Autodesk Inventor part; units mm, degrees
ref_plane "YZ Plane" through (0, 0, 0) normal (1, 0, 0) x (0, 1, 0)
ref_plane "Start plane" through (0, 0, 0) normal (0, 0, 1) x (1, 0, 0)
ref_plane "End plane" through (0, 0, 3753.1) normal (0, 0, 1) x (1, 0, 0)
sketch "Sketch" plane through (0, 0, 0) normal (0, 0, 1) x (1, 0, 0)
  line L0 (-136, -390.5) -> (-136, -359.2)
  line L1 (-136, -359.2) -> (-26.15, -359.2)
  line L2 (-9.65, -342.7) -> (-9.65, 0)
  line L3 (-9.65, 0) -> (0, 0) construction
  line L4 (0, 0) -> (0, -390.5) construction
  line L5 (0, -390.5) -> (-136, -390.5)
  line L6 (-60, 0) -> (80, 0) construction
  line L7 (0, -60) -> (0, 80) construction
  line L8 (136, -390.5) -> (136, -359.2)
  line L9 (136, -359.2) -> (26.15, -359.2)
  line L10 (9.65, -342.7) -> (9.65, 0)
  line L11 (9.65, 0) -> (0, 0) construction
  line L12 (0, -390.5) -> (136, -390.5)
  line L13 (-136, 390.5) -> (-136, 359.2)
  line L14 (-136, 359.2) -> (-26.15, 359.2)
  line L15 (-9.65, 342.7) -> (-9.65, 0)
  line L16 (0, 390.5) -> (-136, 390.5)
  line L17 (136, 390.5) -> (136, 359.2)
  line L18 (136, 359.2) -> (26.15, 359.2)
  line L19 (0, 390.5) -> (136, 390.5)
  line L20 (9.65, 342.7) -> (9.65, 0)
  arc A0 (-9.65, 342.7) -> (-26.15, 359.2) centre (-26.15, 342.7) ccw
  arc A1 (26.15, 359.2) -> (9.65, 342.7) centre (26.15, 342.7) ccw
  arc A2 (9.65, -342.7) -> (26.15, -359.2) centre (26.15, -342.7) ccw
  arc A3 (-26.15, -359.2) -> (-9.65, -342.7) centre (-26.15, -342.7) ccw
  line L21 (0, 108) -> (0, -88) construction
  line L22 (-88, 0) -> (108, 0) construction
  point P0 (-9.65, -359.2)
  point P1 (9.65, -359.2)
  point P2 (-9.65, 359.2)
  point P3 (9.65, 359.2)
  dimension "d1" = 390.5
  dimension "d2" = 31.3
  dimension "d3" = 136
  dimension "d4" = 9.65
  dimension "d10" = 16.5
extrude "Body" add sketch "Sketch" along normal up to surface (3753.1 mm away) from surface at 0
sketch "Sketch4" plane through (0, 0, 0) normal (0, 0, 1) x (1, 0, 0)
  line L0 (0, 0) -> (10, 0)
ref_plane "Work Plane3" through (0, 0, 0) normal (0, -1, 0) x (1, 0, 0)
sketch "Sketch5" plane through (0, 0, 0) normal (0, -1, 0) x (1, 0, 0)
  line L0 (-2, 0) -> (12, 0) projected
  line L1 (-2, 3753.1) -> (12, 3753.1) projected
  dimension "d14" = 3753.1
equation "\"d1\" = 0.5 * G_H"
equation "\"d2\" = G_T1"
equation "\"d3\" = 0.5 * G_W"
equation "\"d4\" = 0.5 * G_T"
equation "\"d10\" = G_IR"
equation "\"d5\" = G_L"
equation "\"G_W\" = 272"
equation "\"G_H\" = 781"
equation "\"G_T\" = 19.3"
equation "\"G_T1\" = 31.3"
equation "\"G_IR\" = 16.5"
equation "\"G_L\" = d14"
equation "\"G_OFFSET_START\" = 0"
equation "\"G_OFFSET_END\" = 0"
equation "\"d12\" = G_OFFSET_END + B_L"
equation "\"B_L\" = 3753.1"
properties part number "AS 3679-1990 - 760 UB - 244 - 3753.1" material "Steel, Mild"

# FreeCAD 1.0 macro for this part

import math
import FreeCAD as App
import Part
import Sketcher

V = App.Vector
Q = App.Units.Quantity

doc = App.newDocument("Part")
body = doc.addObject("PartDesign::Body", "Body")

# Sketch on XY plane
sketch1 = body.newObject("Sketcher::SketchObject", "Sketch")
sketch1.AttachmentSupport = (doc.getObject("XY_Plane"), [""])
sketch1.MapMode = "FlatFace"
sketch1.addGeometry([
    Part.LineSegment(V(-136, -359, 0), V(-136, -390, 0)),  # 0
    Part.LineSegment(V(-136, -390, 0), V(136, -390, 0)),  # 1
    Part.LineSegment(V(136, -390, 0), V(136, -359, 0)),  # 2
    Part.LineSegment(V(136, -359, 0), V(26, -359, 0)),  # 3
    Part.ArcOfCircle(Part.Circle(V(26, -343, 0), V(0, 0, 1), 16), math.radians(180), math.radians(270)),  # 4
    Part.LineSegment(V(10, -343, 0), V(10, 343, 0)),  # 5
    Part.ArcOfCircle(Part.Circle(V(26, 343, 0), V(0, 0, 1), 16), math.radians(90), math.radians(180)),  # 6
    Part.LineSegment(V(26, 359, 0), V(136, 359, 0)),  # 7
    Part.LineSegment(V(136, 359, 0), V(136, 390, 0)),  # 8
    Part.LineSegment(V(136, 390, 0), V(-136, 390, 0)),  # 9
    Part.LineSegment(V(-136, 390, 0), V(-136, 359, 0)),  # 10
    Part.LineSegment(V(-136, 359, 0), V(-26, 359, 0)),  # 11
    Part.ArcOfCircle(Part.Circle(V(-26, 343, 0), V(0, 0, 1), 16), math.radians(0), math.radians(90)),  # 12
    Part.LineSegment(V(-10, 343, 0), V(-10, -343, 0)),  # 13
    Part.ArcOfCircle(Part.Circle(V(-26, -343, 0), V(0, 0, 1), 16), math.radians(-90), math.radians(0)),  # 14
    Part.LineSegment(V(-26, -359, 0), V(-136, -359, 0)),  # 15
], False)
sketch1.addConstraint([
    Sketcher.Constraint("Coincident", 0, 2, 1, 1),
    Sketcher.Constraint("Coincident", 1, 2, 2, 1),
    Sketcher.Constraint("Coincident", 2, 2, 3, 1),
    Sketcher.Constraint("Tangent", 3, 2, 4, 2),
    Sketcher.Constraint("Tangent", 4, 1, 5, 1),
    Sketcher.Constraint("Tangent", 5, 2, 6, 2),
    Sketcher.Constraint("Tangent", 6, 1, 7, 1),
    Sketcher.Constraint("Coincident", 7, 2, 8, 1),
    Sketcher.Constraint("Coincident", 8, 2, 9, 1),
    Sketcher.Constraint("Coincident", 9, 2, 10, 1),
    Sketcher.Constraint("Coincident", 10, 2, 11, 1),
    Sketcher.Constraint("Tangent", 11, 2, 12, 2),
    Sketcher.Constraint("Tangent", 12, 1, 13, 1),
    Sketcher.Constraint("Tangent", 13, 2, 14, 2),
    Sketcher.Constraint("Tangent", 14, 1, 15, 1),
    Sketcher.Constraint("Coincident", 15, 2, 0, 1),
    Sketcher.Constraint("Vertical", 0),
    Sketcher.Constraint("Horizontal", 1),
    Sketcher.Constraint("Vertical", 2),
    Sketcher.Constraint("Horizontal", 3),
    Sketcher.Constraint("Vertical", 5),
    Sketcher.Constraint("Horizontal", 7),
    Sketcher.Constraint("Vertical", 8),
    Sketcher.Constraint("Horizontal", 9),
    Sketcher.Constraint("Vertical", 10),
    Sketcher.Constraint("Horizontal", 11),
    Sketcher.Constraint("Vertical", 13),
    Sketcher.Constraint("Horizontal", 15),
    Sketcher.Constraint("Equal", 4, 6),
    Sketcher.Constraint("Equal", 6, 12),
    Sketcher.Constraint("Equal", 12, 14),
    Sketcher.Constraint("Symmetric", 4, 3, 12, 3, -1, 1),
    Sketcher.Constraint("Symmetric", 0, 2, 8, 2, -1, 1),
    Sketcher.Constraint("Symmetric", 7, 2, 10, 2, -2),
    Sketcher.Constraint("Symmetric", 2, 2, 15, 2, -2),
    Sketcher.Constraint("Radius", 4, Q("16.5 mm")),
    Sketcher.Constraint("DistanceY", 0, 2, 0, 1, Q("31.3 mm")),
    Sketcher.Constraint("DistanceX", 0, 2, -1, 1, Q("136 mm")),
    Sketcher.Constraint("DistanceY", 0, 2, -1, 1, Q("390.5 mm")),
    Sketcher.Constraint("DistanceX", -1, 1, 4, 1, Q("9.65 mm")),
])
pad1 = body.newObject("PartDesign::Pad", "Pad")
pad1.Profile = sketch1
pad1.Length = 3753.1

doc.recompute()
